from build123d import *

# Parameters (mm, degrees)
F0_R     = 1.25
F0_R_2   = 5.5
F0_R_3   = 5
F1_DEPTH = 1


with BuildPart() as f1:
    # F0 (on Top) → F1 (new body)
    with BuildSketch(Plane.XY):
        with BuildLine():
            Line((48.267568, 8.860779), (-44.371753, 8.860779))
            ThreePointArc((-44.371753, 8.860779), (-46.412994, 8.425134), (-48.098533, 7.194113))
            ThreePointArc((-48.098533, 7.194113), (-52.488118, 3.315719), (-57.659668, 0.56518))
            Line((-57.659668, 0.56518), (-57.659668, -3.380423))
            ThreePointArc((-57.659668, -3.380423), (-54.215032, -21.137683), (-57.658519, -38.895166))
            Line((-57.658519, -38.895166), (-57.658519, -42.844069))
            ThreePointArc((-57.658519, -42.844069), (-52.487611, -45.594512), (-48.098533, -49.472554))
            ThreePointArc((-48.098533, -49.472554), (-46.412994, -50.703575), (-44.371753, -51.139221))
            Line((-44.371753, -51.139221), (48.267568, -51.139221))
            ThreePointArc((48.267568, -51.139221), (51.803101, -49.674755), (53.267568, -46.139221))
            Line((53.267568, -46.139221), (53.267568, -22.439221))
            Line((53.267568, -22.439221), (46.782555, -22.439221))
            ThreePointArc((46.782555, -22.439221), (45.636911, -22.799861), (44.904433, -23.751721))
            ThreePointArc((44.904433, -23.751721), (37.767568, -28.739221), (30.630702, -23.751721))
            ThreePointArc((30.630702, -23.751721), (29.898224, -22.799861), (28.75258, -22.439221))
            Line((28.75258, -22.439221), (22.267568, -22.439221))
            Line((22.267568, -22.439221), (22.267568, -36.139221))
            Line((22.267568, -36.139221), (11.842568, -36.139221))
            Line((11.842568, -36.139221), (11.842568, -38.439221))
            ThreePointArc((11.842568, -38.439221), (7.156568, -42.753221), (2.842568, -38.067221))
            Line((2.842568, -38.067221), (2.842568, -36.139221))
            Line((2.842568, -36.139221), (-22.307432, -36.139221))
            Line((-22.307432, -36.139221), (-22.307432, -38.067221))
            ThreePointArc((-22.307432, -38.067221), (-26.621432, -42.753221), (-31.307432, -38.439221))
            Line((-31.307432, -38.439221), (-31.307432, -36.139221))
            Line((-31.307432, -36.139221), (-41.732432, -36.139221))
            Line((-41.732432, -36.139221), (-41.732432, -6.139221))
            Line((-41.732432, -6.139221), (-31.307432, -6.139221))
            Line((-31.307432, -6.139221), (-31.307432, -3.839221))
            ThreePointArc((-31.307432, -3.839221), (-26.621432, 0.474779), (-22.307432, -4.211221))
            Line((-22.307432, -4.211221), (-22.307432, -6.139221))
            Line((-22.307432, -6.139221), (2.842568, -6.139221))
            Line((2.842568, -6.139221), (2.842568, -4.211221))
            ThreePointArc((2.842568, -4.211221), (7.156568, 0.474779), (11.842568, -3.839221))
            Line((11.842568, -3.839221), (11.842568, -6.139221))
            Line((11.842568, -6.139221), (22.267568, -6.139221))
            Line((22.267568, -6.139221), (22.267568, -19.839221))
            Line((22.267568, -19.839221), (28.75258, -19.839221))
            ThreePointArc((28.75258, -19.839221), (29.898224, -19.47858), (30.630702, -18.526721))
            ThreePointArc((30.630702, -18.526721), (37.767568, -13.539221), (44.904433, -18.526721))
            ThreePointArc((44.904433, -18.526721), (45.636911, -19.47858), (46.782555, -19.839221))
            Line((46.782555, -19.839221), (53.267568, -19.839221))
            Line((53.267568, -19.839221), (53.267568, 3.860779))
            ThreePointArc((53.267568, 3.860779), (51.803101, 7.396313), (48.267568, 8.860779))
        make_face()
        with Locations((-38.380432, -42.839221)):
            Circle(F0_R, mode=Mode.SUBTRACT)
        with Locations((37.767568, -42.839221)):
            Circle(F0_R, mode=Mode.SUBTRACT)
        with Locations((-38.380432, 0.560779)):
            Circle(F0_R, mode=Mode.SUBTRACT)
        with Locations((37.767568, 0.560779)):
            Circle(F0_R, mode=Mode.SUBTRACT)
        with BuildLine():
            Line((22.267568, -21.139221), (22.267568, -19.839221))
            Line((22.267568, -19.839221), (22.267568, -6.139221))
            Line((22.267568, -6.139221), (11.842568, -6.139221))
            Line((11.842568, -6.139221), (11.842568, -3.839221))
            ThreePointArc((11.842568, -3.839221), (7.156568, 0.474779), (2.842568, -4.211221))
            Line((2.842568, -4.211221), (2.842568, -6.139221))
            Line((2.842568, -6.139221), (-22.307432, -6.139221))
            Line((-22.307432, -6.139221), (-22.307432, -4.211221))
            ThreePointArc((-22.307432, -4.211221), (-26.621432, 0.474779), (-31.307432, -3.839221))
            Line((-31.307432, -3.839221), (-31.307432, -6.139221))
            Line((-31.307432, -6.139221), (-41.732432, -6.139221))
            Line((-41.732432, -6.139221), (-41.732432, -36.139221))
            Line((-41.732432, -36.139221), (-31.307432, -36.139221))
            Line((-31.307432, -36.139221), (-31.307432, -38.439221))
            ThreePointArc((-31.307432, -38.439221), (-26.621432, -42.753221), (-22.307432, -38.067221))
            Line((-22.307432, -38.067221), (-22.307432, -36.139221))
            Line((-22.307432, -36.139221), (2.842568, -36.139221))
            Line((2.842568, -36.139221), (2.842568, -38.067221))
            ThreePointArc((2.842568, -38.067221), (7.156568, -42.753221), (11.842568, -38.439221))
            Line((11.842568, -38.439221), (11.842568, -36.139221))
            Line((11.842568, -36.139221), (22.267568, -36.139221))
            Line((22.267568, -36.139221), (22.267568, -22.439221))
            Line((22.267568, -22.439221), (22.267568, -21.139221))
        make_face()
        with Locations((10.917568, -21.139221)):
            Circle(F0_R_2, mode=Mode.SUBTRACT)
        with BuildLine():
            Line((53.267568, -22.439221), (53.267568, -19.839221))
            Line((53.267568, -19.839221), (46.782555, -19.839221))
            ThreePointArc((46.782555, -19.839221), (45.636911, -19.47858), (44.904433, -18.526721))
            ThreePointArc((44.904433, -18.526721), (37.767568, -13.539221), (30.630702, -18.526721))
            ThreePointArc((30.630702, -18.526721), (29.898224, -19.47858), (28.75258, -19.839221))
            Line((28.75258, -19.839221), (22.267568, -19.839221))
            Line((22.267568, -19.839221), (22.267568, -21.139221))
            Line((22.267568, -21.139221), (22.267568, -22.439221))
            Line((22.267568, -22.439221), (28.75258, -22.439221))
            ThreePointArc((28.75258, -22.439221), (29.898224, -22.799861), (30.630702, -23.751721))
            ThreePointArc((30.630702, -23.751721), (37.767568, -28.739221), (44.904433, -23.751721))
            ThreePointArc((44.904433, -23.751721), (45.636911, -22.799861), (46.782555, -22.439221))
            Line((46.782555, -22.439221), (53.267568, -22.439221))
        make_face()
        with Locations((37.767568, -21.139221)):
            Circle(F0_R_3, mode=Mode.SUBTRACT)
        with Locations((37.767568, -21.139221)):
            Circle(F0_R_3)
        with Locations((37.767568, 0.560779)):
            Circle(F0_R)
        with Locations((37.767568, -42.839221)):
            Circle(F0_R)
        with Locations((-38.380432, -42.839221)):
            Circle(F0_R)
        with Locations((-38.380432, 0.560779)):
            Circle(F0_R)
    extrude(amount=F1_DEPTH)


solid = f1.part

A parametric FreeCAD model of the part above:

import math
import FreeCAD as App
import Part
import Sketcher
from FreeCAD import Vector

doc = App.newDocument("Part")
body = doc.addObject("PartDesign::Body", "Body")

sketch1 = body.newObject("Sketcher::SketchObject", "Sketch")
sketch1.AttachmentSupport = (doc.getObject("XY_Plane"), [""])
sketch1.MapMode = "FlatFace"
sketch1.addGeometry([
    Part.LineSegment(Vector(48.267568, 8.860779, 0), Vector(-44.371753, 8.860779, 0)),
    Part.ArcOfCircle(Part.Circle(Vector(-44.371753, 3.860778, 0), Vector(0, 0, 1), 5.000001), math.radians(89.999999), math.radians(138.189668)),
    Part.ArcOfCircle(Part.Circle(Vector(-66.73243, 23.860773, 0), Vector(0, 0, 1), 24.999993), math.radians(-68.720948), math.radians(-41.810309)),
    Part.LineSegment(Vector(-57.659668, 0.56518, 0), Vector(-57.659668, -3.380423, 0)),
    Part.ArcOfCircle(Part.Circle(Vector(-101.715026, -21.13922, 0), Vector(0, 0, 1), 47.499994), math.radians(-21.950748), math.radians(21.954455)),
    Part.LineSegment(Vector(-57.658519, -38.895166, 0), Vector(-57.658519, -42.844069, 0)),
    Part.ArcOfCircle(Part.Circle(Vector(-66.732432, -66.13922, 0), Vector(0, 0, 1), 24.999999), math.radians(41.810314), math.radians(68.718121)),
    Part.ArcOfCircle(Part.Circle(Vector(-44.37175, -46.139214, 0), Vector(0, 0, 1), 5.000007), math.radians(-138.189654), math.radians(-90.000039)),
    Part.LineSegment(Vector(-44.371753, -51.139221, 0), Vector(48.267568, -51.139221, 0)),
    Part.ArcOfCircle(Part.Circle(Vector(48.267567, -46.13922, 0), Vector(0, 0, 1), 5.000001), math.radians(-89.999984), math.radians(-0.000016)),
    Part.LineSegment(Vector(53.267568, -46.139221, 0), Vector(53.267568, 3.860779, 0)),
    Part.ArcOfCircle(Part.Circle(Vector(48.267567, 3.860778, 0), Vector(0, 0, 1), 5.000001), math.radians(0.000016), math.radians(89.999984)),
    Part.Circle(Vector(10.917568, -21.139221, 0), Vector(0, 0, 1), 5.5),
], False)
sketch1.addConstraint([
    Sketcher.Constraint("Coincident", 0, 2, 1, 1),
    Sketcher.Constraint("Coincident", 1, 2, 2, 2),
    Sketcher.Constraint("Coincident", 2, 1, 3, 1),
    Sketcher.Constraint("Coincident", 3, 2, 4, 2),
    Sketcher.Constraint("Coincident", 4, 1, 5, 1),
    Sketcher.Constraint("Coincident", 5, 2, 6, 2),
    Sketcher.Constraint("Coincident", 6, 1, 7, 1),
    Sketcher.Constraint("Coincident", 7, 2, 8, 1),
    Sketcher.Constraint("Coincident", 8, 2, 9, 1),
    Sketcher.Constraint("Coincident", 9, 2, 10, 1),
    Sketcher.Constraint("Coincident", 10, 2, 11, 1),
    Sketcher.Constraint("Coincident", 11, 2, 0, 1),
    Sketcher.Constraint("Horizontal", 0),
    Sketcher.Constraint("Vertical", 3),
    Sketcher.Constraint("Vertical", 5),
    Sketcher.Constraint("Horizontal", 8),
    Sketcher.Constraint("Vertical", 10),
    Sketcher.Constraint("Diameter", 12, 11.0),
    Sketcher.Constraint("Radius", 1, 5.000001),
    Sketcher.Constraint("Radius", 6, 24.999999),
    Sketcher.Constraint("Radius", 9, 5.000001),
    Sketcher.Constraint("Radius", 11, 5.000001),
    Sketcher.Constraint("DistanceY", 10, 1, 10, 2, 50.0),
    Sketcher.Constraint("DistanceY", 6, 3, 4, 3, 45.0),
    Sketcher.Constraint("DistanceX", 6, 3, 9, 3, 114.999999),
    Sketcher.Constraint("DistanceY", 6, 3, 9, 3, 20.0),
    Sketcher.Constraint("DistanceY", 9, 3, 12, 3, 24.999999),
    Sketcher.Constraint("DistanceY", 12, 3, 11, 3, 24.999999),
    Sketcher.Constraint("DistanceX", 8, 2, 9, 2, 5.0),
    Sketcher.Constraint("DistanceY", 8, 2, 9, 2, 5.0),
    Sketcher.Constraint("DistanceX", 11, 2, 10, 2, 5.0),
    Sketcher.Constraint("DistanceX", 12, 3, 9, 3, 37.349999),
    Sketcher.Constraint("Radius", 2, 24.999993),
    Sketcher.Constraint("Radius", 4, 47.499994),
    Sketcher.Constraint("Radius", 7, 5.000007),
    Sketcher.Constraint("DistanceX", 0, 2, 0, 1, 92.639321),
    Sketcher.Constraint("DistanceX", 8, 1, 8, 2, 92.639321),
    Sketcher.Constraint("DistanceY", 2, 1, 0, 2, 8.295599),
    Sketcher.Constraint("DistanceY", 3, 2, 1, 3, 7.241201),
    Sketcher.Constraint("DistanceX", 6, 3, 6, 1, 18.633899),
    Sketcher.Constraint("DistanceY", 5, 2, 5, 1, 3.948903),
    Sketcher.Constraint("DistanceX", 2, 3, -1, 1, 66.73243),
    Sketcher.Constraint("DistanceY", 4, 3, -1, 1, 21.13922),
    Sketcher.Constraint("DistanceX", 7, 3, -1, 1, 44.37175),
    Sketcher.Constraint("DistanceX", 2, 1, -1, 1, 57.659668),
    Sketcher.Constraint("DistanceX", 1, 2, 0, 2, 3.72678),
])
pad1 = body.newObject("PartDesign::Pad", "Pad")
pad1.Profile = sketch1
pad1.Length = 1

doc.recompute()
